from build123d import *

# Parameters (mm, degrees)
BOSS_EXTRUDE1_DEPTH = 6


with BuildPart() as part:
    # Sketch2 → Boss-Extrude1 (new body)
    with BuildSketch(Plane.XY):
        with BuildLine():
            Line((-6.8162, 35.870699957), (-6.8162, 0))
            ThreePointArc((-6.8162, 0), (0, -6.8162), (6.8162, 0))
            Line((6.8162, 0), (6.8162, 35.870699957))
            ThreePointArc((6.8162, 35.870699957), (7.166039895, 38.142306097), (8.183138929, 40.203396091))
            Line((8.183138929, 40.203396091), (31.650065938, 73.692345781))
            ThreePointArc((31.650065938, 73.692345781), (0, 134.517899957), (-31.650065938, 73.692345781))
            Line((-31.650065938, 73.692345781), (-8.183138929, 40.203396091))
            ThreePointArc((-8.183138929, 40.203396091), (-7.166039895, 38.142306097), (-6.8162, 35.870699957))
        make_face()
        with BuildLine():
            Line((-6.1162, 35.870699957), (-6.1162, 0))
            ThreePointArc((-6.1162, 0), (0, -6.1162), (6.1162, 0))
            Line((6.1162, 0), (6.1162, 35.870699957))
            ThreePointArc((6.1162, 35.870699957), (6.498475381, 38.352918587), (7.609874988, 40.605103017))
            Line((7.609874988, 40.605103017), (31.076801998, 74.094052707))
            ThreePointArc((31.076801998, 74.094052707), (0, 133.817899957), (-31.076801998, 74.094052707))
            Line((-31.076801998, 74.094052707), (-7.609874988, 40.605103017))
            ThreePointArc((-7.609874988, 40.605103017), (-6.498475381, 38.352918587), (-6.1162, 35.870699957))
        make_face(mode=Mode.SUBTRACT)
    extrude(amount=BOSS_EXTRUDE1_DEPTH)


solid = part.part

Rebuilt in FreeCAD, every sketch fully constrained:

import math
import FreeCAD as App
import Part
import Sketcher
Q = App.Units.Quantity

doc = App.newDocument("Part")
body = doc.addObject("PartDesign::Body", "Body")

# Sketch on XY plane
sketch1 = body.newObject("Sketcher::SketchObject", "Sketch")
sketch1.AttachmentSupport = (doc.getObject("XY_Plane"), [""])
sketch1.MapMode = "FlatFace"
sketch1.addGeometry([
    Part.LineSegment(App.Vector(-6.8, 35.9, 0), App.Vector(-6.8, 0, 0)),  # 0
    Part.ArcOfCircle(Part.Circle(App.Vector(0, 0, 0), App.Vector(0, 0, 1), 6.8), math.radians(180), math.radians(360)),  # 1
    Part.LineSegment(App.Vector(6.8, 0, 0), App.Vector(6.8, 35.9, 0)),  # 2
    Part.ArcOfCircle(Part.Circle(App.Vector(14.4, 35.9, 0), App.Vector(0, 0, 1), 7.6), math.radians(145), math.radians(180)),  # 3
    Part.LineSegment(App.Vector(8.2, 40.2, 0), App.Vector(31.7, 73.7, 0)),  # 4
    Part.ArcOfCircle(Part.Circle(App.Vector(0, 95.9, 0), App.Vector(0, 0, 1), 38.6), math.radians(-35), math.radians(215)),  # 5
    Part.LineSegment(App.Vector(-31.7, 73.7, 0), App.Vector(-8.2, 40.2, 0)),  # 6
    Part.ArcOfCircle(Part.Circle(App.Vector(-14.4, 35.9, 0), App.Vector(0, 0, 1), 7.6), math.radians(0), math.radians(35)),  # 7
    Part.LineSegment(App.Vector(-6.1, 0, 0), App.Vector(-6.1, 35.9, 0)),  # 8
    Part.ArcOfCircle(Part.Circle(App.Vector(-14.4, 35.9, 0), App.Vector(0, 0, 1), 8.2), math.radians(0), math.radians(35)),  # 9
    Part.LineSegment(App.Vector(-7.6, 40.6, 0), App.Vector(-31.1, 74.1, 0)),  # 10
    Part.ArcOfCircle(Part.Circle(App.Vector(0, 95.9, 0), App.Vector(0, 0, 1), 37.9), math.radians(-35), math.radians(215)),  # 11
    Part.LineSegment(App.Vector(31.1, 74.1, 0), App.Vector(7.6, 40.6, 0)),  # 12
    Part.ArcOfCircle(Part.Circle(App.Vector(14.4, 35.9, 0), App.Vector(0, 0, 1), 8.2), math.radians(145), math.radians(180)),  # 13
    Part.LineSegment(App.Vector(6.1, 35.9, 0), App.Vector(6.1, 0, 0)),  # 14
    Part.ArcOfCircle(Part.Circle(App.Vector(0, 0, 0), App.Vector(0, 0, 1), 6.1), math.radians(180), math.radians(360)),  # 15
], False)
sketch1.addConstraint([
    Sketcher.Constraint("Tangent", 0, 2, 1, 1),
    Sketcher.Constraint("Tangent", 1, 2, 2, 1),
    Sketcher.Constraint("Tangent", 2, 2, 3, 2),
    Sketcher.Constraint("Tangent", 3, 1, 4, 1),
    Sketcher.Constraint("Tangent", 4, 2, 5, 1),
    Sketcher.Constraint("Tangent", 5, 2, 6, 1),
    Sketcher.Constraint("Tangent", 6, 2, 7, 2),
    Sketcher.Constraint("Tangent", 7, 1, 0, 1),
    Sketcher.Constraint("Tangent", 8, 2, 9, 1),
    Sketcher.Constraint("Tangent", 9, 2, 10, 1),
    Sketcher.Constraint("Tangent", 10, 2, 11, 2),
    Sketcher.Constraint("Tangent", 11, 1, 12, 1),
    Sketcher.Constraint("Tangent", 12, 2, 13, 1),
    Sketcher.Constraint("Tangent", 13, 2, 14, 1),
    Sketcher.Constraint("Tangent", 14, 2, 15, 2),
    Sketcher.Constraint("Tangent", 15, 1, 8, 1),
    Sketcher.Constraint("Vertical", 0),
    Sketcher.Constraint("Vertical", 2),
    Sketcher.Constraint("Vertical", 8),
    Sketcher.Constraint("Vertical", 14),
    Sketcher.Constraint("Coincident", 1, 3, -1, 1),
    Sketcher.Constraint("Coincident", 15, 3, -1, 1),
    Sketcher.Constraint("Coincident", 9, 3, 7, 3),
    Sketcher.Constraint("Coincident", 11, 3, 5, 3),
    Sketcher.Constraint("Coincident", 13, 3, 3, 3),
    Sketcher.Constraint("Equal", 3, 7),
    Sketcher.Constraint("Symmetric", 4, 2, 5, 2, -2),
    Sketcher.Constraint("Parallel", 6, 10),
    Sketcher.Constraint("Radius", 3, Q("7.55 mm")),
    Sketcher.Constraint("Radius", 9, Q("8.25 mm")),
    Sketcher.Constraint("DistanceY", 3, 3, 5, 3, Q("60 mm")),
    Sketcher.Constraint("Radius", 1, Q("6.8162 mm")),
    Sketcher.Constraint("Radius", 5, Q("38.6472 mm")),
    Sketcher.Constraint("DistanceY", 0, 2, 0, 1, Q("35.8707 mm")),
])
pad1 = body.newObject("PartDesign::Pad", "Pad")
pad1.Profile = sketch1
pad1.Length = 6

doc.recompute()
